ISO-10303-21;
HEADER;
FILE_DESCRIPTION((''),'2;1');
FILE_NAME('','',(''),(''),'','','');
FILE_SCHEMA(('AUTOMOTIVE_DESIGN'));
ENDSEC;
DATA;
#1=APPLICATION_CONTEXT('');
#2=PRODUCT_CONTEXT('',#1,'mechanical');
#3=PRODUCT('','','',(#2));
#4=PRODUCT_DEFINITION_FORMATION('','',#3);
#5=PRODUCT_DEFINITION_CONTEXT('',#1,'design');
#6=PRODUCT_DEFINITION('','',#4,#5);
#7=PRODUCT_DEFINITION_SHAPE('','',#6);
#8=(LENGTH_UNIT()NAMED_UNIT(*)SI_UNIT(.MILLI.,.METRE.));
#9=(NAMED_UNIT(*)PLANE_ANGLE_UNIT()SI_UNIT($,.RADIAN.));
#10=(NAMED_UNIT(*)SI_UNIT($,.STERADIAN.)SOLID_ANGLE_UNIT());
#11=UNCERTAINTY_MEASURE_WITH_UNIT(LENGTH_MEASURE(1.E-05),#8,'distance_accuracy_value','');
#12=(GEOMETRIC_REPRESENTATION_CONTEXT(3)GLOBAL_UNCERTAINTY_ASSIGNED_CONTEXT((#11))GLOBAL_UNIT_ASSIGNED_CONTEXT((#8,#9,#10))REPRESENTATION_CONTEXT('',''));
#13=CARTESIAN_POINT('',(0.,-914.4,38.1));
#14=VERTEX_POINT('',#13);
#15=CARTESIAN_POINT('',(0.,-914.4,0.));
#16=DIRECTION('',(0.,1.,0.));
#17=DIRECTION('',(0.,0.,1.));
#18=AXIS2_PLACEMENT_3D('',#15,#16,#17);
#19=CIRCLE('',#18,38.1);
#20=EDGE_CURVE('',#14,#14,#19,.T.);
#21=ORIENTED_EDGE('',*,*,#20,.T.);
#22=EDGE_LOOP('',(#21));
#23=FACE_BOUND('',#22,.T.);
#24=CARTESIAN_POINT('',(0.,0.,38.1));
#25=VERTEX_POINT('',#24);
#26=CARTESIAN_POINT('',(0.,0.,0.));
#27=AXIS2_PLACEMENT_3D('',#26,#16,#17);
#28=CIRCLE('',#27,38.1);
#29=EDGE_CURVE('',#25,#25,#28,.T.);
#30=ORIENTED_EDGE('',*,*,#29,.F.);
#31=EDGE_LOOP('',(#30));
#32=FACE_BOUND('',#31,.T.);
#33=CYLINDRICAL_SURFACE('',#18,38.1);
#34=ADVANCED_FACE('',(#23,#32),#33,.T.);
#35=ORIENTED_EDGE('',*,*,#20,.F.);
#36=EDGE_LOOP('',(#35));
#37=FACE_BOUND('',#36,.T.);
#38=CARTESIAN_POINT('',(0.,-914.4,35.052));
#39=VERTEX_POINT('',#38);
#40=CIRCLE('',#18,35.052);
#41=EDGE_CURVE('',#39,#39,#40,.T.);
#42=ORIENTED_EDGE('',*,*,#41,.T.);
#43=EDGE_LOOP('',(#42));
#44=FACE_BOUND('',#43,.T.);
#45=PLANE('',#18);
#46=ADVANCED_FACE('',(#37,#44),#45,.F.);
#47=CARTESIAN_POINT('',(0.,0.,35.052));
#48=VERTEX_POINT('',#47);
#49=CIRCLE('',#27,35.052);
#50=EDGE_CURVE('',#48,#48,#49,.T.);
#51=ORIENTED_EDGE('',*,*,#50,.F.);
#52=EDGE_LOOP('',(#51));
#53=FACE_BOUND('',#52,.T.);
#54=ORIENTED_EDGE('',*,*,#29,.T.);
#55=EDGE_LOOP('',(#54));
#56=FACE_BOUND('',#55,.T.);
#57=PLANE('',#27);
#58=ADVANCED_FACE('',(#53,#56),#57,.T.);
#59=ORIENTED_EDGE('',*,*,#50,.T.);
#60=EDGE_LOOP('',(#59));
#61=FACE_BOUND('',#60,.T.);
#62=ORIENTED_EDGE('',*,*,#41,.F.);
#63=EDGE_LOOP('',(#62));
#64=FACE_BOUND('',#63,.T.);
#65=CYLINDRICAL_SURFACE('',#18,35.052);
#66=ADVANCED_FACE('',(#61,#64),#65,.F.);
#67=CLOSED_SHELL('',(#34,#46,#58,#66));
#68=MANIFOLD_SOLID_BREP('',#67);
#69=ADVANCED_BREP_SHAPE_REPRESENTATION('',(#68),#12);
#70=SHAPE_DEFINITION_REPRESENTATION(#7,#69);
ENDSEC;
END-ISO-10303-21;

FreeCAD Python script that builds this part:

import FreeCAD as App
import Part
import Sketcher
from FreeCAD import Vector
Q = App.Units.Quantity

doc = App.newDocument("Part")
body = doc.addObject("PartDesign::Body", "Body")

sketch1 = doc.addObject("Sketcher::SketchObject", "Sketch")
body.addObject(sketch1)
sketch1.AttachmentSupport = (doc.XZ_Plane, [""])
sketch1.MapMode = "FlatFace"
sketch1.addGeometry(Part.Circle(Vector(0, 0, 0), Vector(0, 0, 1), 38.1), False)
sketch1.addConstraint([
    Sketcher.Constraint("Coincident", 0, 3, -1, 1),
    Sketcher.Constraint("Diameter", 0, Q("3 in")),
])
pad1 = doc.addObject("PartDesign::Pad", "Pad")
body.addObject(pad1)
pad1.Profile = sketch1
pad1.Length = Q("36 in")

sketch2 = doc.addObject("Sketcher::SketchObject", "Sketch001")
body.addObject(sketch2)
sketch2.AttachmentSupport = (doc.XZ_Plane, [""])
sketch2.MapMode = "FlatFace"
sketch2.addGeometry(Part.Circle(Vector(0, 0, 0), Vector(0, 0, 1), 35.052), False)
sketch2.addConstraint([
    Sketcher.Constraint("Coincident", 0, 3, -1, 1),
    Sketcher.Constraint("Diameter", 0, Q("2.76 in")),
])
pocket1 = doc.addObject("PartDesign::Pocket", "Pocket")
body.addObject(pocket1)
pocket1.Profile = sketch2
pocket1.Type = "ThroughAll"
pocket1.Reversed = True

doc.recompute()
